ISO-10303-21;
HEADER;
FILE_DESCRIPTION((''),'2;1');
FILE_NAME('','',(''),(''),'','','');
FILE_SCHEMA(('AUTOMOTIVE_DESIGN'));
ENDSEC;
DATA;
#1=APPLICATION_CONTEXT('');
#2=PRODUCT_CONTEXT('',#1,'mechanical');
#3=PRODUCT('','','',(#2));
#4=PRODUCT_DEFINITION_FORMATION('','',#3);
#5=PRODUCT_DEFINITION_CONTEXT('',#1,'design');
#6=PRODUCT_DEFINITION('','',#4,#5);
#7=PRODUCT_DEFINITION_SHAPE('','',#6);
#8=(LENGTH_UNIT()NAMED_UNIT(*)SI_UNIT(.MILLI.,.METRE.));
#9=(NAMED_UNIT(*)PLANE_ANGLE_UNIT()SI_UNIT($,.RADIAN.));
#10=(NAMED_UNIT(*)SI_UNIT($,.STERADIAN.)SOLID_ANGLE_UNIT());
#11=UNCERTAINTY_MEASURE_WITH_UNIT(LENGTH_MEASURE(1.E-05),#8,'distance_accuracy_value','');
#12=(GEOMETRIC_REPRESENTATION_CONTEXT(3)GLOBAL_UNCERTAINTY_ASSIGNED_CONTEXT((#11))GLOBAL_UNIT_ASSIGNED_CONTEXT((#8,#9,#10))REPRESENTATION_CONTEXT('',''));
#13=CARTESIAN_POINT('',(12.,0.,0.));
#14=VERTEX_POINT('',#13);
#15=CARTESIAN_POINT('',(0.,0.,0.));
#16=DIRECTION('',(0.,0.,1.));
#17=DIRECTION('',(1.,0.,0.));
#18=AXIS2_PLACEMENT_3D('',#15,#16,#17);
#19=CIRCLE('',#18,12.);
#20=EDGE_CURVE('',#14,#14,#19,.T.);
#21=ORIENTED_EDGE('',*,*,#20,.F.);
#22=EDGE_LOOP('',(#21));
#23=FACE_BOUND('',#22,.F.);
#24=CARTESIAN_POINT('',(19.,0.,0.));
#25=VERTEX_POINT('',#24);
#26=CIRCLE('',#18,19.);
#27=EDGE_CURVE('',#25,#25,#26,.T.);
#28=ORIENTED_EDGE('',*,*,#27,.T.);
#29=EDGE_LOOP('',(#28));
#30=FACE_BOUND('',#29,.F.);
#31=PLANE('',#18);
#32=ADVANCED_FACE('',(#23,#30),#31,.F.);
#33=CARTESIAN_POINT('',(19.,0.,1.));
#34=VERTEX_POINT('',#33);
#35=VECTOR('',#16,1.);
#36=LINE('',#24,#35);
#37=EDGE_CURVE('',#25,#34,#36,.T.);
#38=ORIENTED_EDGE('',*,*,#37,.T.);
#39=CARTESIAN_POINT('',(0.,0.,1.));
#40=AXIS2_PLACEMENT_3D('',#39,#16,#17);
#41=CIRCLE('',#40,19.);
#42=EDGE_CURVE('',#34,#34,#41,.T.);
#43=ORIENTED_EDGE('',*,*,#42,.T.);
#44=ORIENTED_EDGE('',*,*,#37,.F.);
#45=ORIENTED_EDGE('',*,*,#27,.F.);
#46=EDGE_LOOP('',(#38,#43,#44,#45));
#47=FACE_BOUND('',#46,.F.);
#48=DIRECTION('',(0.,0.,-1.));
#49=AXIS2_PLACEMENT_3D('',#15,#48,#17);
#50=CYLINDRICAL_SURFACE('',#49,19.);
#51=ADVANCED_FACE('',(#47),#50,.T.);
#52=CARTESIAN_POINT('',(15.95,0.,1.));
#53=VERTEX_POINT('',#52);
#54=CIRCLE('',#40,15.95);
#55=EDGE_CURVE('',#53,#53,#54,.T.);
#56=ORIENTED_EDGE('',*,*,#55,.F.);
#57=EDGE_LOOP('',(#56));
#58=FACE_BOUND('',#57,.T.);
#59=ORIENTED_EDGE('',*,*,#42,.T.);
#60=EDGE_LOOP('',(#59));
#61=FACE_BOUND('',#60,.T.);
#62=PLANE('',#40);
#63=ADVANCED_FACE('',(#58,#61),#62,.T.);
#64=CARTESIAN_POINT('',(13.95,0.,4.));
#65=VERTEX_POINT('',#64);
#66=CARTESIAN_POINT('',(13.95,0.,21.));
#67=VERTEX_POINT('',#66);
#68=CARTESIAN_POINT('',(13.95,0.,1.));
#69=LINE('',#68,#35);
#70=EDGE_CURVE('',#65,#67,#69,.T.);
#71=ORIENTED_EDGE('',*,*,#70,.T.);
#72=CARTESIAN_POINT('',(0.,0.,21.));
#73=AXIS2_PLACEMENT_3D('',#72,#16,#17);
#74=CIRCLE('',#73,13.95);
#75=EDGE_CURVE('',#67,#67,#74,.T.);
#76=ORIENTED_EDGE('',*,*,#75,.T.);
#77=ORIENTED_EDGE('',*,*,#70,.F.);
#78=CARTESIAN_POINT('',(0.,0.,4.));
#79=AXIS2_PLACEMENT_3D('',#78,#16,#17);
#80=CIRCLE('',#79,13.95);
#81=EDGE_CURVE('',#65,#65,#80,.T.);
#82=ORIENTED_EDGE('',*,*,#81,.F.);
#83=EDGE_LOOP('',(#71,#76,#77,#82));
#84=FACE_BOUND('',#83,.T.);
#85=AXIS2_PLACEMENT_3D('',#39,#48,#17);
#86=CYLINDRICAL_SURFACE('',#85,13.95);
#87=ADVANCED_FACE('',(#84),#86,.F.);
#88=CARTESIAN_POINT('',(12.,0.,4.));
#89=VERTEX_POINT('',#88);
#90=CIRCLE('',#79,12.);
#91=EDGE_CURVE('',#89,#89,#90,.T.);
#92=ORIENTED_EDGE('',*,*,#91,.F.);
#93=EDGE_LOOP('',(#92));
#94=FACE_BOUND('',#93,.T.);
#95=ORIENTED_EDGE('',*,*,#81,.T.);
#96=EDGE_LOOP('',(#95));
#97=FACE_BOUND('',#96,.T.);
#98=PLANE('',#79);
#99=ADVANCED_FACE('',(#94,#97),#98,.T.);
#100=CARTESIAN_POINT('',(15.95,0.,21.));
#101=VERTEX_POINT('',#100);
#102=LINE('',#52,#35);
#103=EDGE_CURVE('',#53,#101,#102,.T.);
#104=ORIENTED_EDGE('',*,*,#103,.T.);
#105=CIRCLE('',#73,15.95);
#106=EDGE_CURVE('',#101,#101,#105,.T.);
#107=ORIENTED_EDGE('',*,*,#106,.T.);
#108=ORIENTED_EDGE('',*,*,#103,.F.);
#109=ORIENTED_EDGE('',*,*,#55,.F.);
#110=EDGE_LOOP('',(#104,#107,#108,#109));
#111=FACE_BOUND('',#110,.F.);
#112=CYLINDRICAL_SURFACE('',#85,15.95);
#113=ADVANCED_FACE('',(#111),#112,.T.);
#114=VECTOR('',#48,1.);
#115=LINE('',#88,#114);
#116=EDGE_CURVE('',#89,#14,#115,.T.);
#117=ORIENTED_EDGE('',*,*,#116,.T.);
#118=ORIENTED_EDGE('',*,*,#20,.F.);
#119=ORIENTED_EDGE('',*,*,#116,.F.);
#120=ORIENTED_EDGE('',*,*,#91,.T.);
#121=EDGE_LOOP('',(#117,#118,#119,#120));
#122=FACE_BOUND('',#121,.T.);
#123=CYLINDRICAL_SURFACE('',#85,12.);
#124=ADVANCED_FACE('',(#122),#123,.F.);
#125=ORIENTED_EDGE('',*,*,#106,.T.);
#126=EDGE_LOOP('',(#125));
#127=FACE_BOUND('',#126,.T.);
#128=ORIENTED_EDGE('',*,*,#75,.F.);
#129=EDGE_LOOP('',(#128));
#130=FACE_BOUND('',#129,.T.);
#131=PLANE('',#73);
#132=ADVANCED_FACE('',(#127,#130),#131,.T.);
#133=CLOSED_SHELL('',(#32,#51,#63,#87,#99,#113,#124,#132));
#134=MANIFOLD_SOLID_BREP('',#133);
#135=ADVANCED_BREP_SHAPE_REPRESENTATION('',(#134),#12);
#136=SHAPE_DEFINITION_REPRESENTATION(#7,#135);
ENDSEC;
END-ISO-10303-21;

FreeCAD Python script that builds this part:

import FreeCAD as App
import Part
import Sketcher
Q = App.Units.Quantity

doc = App.newDocument("Part")
body = doc.addObject("PartDesign::Body", "Body")

# Sketch on XY plane
sketch1 = body.newObject("Sketcher::SketchObject", "Sketch")
sketch1.AttachmentSupport = (doc.getObject("XY_Plane"), [""])
sketch1.MapMode = "FlatFace"
sketch1.addGeometry([
    Part.Circle(App.Vector(0, 0, 0), App.Vector(0, 0, 1), 19),
    Part.Circle(App.Vector(0, 0, 0), App.Vector(0, 0, 1), 12),
], False)
sketch1.addConstraint([
    Sketcher.Constraint("Coincident", 0, 3, -1, 1),
    Sketcher.Constraint("Coincident", 1, 3, -1, 1),
    Sketcher.Constraint("Diameter", 0, Q("38 mm")),
    Sketcher.Constraint("Diameter", 1, Q("24 mm")),
])
pad1 = body.newObject("PartDesign::Pad", "Pad")
pad1.Profile = sketch1
pad1.Length = 1

# Sketch on XY plane
sketch2 = body.newObject("Sketcher::SketchObject", "Sketch001")
sketch2.AttachmentSupport = (doc.getObject("XY_Plane"), [""])
sketch2.MapMode = "FlatFace"
sketch2.AttachmentOffset = App.Placement(App.Vector(0, 0, 1), App.Rotation())
sketch2.addGeometry([
    Part.Circle(App.Vector(0, 0, 0), App.Vector(0, 0, 1), 16),
    Part.Circle(App.Vector(0, 0, 0), App.Vector(0, 0, 1), 14),
], False)
sketch2.addConstraint([
    Sketcher.Constraint("Coincident", 0, 3, -1, 1),
    Sketcher.Constraint("Coincident", 1, 3, -1, 1),
    Sketcher.Constraint("Diameter", 0, Q("31.9 mm")),
    Sketcher.Constraint("Diameter", 1, Q("27.9 mm")),
])
pad2 = body.newObject("PartDesign::Pad", "Pad001")
pad2.Profile = sketch2
pad2.Length = 20

# Sketch on XY plane
sketch3 = body.newObject("Sketcher::SketchObject", "Sketch002")
sketch3.AttachmentSupport = (doc.getObject("XY_Plane"), [""])
sketch3.MapMode = "FlatFace"
sketch3.AttachmentOffset = App.Placement(App.Vector(0, 0, 1), App.Rotation())
sketch3.addGeometry([
    Part.Circle(App.Vector(0, 0, 0), App.Vector(0, 0, 1), 14),
    Part.Circle(App.Vector(0, 0, 0), App.Vector(0, 0, 1), 12),
], False)
sketch3.addConstraint([
    Sketcher.Constraint("Coincident", 0, 3, -1, 1),
    Sketcher.Constraint("Coincident", 1, 3, -1, 1),
    Sketcher.Constraint("Diameter", 1, Q("24 mm")),
    Sketcher.Constraint("Diameter", 0, Q("27.9 mm")),
])
pad3 = body.newObject("PartDesign::Pad", "Pad002")
pad3.Profile = sketch3
pad3.Length = 3

doc.recompute()
